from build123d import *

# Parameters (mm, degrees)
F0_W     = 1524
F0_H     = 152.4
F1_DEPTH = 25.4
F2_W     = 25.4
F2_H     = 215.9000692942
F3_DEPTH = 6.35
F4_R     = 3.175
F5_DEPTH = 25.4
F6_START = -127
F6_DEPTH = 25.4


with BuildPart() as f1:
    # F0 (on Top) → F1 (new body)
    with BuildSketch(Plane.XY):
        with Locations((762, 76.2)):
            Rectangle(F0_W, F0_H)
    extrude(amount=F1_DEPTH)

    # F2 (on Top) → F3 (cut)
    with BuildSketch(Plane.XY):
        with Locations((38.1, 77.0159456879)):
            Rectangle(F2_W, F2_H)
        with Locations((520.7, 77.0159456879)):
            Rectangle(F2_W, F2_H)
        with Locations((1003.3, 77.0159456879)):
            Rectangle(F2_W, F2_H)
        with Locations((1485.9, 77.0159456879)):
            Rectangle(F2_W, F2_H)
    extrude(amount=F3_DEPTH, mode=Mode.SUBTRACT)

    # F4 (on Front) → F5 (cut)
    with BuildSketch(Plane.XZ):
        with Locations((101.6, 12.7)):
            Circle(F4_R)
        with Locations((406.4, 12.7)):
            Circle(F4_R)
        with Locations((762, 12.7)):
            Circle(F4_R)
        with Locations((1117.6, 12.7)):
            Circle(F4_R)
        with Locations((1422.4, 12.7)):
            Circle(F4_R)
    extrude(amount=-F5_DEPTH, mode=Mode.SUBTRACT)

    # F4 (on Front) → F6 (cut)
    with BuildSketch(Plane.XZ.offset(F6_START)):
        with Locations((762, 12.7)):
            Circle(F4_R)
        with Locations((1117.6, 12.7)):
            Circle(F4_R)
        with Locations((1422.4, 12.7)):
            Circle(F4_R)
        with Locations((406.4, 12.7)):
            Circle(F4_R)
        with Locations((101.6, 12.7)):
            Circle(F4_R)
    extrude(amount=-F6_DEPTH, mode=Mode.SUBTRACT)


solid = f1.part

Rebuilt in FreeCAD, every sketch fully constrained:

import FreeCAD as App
import Part
import Sketcher

V = App.Vector
Q = App.Units.Quantity


def add_polygon(sketch, points):
    """Adds a closed chain of lines whose ends are joined by coincident constraints."""
    first, n = sketch.GeometryCount, len(points)
    for a, b in zip(points, points[1:] + points[:1]):
        sketch.addGeometry(Part.LineSegment(App.Vector(*a, 0), App.Vector(*b, 0)), False)
    for i in range(n):
        sketch.addConstraint(Sketcher.Constraint("Coincident", first + i, 2, first + (i + 1) % n, 1))

doc = App.newDocument("Part")
body = doc.addObject("PartDesign::Body", "Body")

# Sketch on XY plane
sketch1 = doc.addObject("Sketcher::SketchObject", "Sketch")
body.addObject(sketch1)
sketch1.AttachmentSupport = (doc.XY_Plane, [""])
sketch1.MapMode = "FlatFace"
add_polygon(sketch1, [(0, 152), (0, 0), (1524, 0), (1524, 152)])  # lines 0-3
sketch1.addConstraint(Sketcher.Constraint("Vertical", 0))
sketch1.addConstraint(Sketcher.Constraint("Horizontal", 1))
sketch1.addConstraint(Sketcher.Constraint("Vertical", 2))
sketch1.addConstraint(Sketcher.Constraint("Horizontal", 3))
sketch1.addConstraint(Sketcher.Constraint("Coincident", 0, 2, -1, 1))
sketch1.addConstraint(Sketcher.Constraint("DistanceX", 1, 1, 1, 2, Q("60 in")))
sketch1.addConstraint(Sketcher.Constraint("DistanceY", 0, 2, 0, 1, Q("6 in")))
pad1 = doc.addObject("PartDesign::Pad", "Pad")
body.addObject(pad1)
pad1.Profile = sketch1
pad1.Length = Q("1 in")

# Sketch on XY plane
sketch2 = doc.addObject("Sketcher::SketchObject", "Sketch001")
body.addObject(sketch2)
sketch2.AttachmentSupport = (doc.XY_Plane, [""])
sketch2.MapMode = "FlatFace"
add_polygon(sketch2, [(25, 185), (25, -31), (51, -31), (51, 185)])  # lines 0-3
add_polygon(sketch2, [(508, 185), (508, -31), (533, -31), (533, 185)])  # lines 4-7
add_polygon(sketch2, [(991, 185), (991, -31), (1016, -31), (1016, 185)])  # lines 8-11
add_polygon(sketch2, [(1473, 185), (1473, -31), (1499, -31), (1499, 185)])  # lines 12-15
sketch2.addConstraint(Sketcher.Constraint("Vertical", 0))
sketch2.addConstraint(Sketcher.Constraint("Horizontal", 1))
sketch2.addConstraint(Sketcher.Constraint("Vertical", 2))
sketch2.addConstraint(Sketcher.Constraint("Horizontal", 3))
sketch2.addConstraint(Sketcher.Constraint("Vertical", 4))
sketch2.addConstraint(Sketcher.Constraint("Horizontal", 5))
sketch2.addConstraint(Sketcher.Constraint("Vertical", 6))
sketch2.addConstraint(Sketcher.Constraint("Horizontal", 7))
sketch2.addConstraint(Sketcher.Constraint("Vertical", 8))
sketch2.addConstraint(Sketcher.Constraint("Horizontal", 9))
sketch2.addConstraint(Sketcher.Constraint("Vertical", 10))
sketch2.addConstraint(Sketcher.Constraint("Horizontal", 11))
sketch2.addConstraint(Sketcher.Constraint("Vertical", 12))
sketch2.addConstraint(Sketcher.Constraint("Horizontal", 13))
sketch2.addConstraint(Sketcher.Constraint("Vertical", 14))
sketch2.addConstraint(Sketcher.Constraint("Horizontal", 15))
sketch2.addConstraint(Sketcher.Constraint("Horizontal", 1, 2, 4, 2))
sketch2.addConstraint(Sketcher.Constraint("Horizontal", 3, 2, 6, 2))
sketch2.addConstraint(Sketcher.Constraint("Horizontal", 5, 2, 8, 2))
sketch2.addConstraint(Sketcher.Constraint("Horizontal", 7, 2, 10, 2))
sketch2.addConstraint(Sketcher.Constraint("Horizontal", 9, 2, 12, 2))
sketch2.addConstraint(Sketcher.Constraint("Horizontal", 11, 2, 14, 2))
sketch2.addConstraint(Sketcher.Constraint("Equal", 3, 5))
sketch2.addConstraint(Sketcher.Constraint("Equal", 7, 9))
sketch2.addConstraint(Sketcher.Constraint("Equal", 11, 13))
sketch2.addConstraint(Sketcher.Constraint("DistanceX", 1, 1, 1, 2, Q("1 in")))
sketch2.addConstraint(Sketcher.Constraint("DistanceX", -1, 1, 0, 2, Q("1 in")))
sketch2.addConstraint(Sketcher.Constraint("DistanceX", -1, 1, 4, 2, Q("20 in")))
sketch2.addConstraint(Sketcher.Constraint("DistanceX", -1, 1, 8, 2, Q("39 in")))
sketch2.addConstraint(Sketcher.Constraint("DistanceX", -1, 1, 12, 2, Q("58 in")))
sketch2.addConstraint(Sketcher.Constraint("DistanceY", 0, 2, 0, 1, 215.900069))
sketch2.addConstraint(Sketcher.Constraint("DistanceY", 0, 2, -1, 1, 30.934089))
pocket1 = doc.addObject("PartDesign::Pocket", "Pocket")
body.addObject(pocket1)
pocket1.Profile = sketch2
pocket1.Length = Q("0.25 in")
pocket1.Reversed = True

# Sketch on XZ plane
sketch3 = doc.addObject("Sketcher::SketchObject", "Sketch002")
body.addObject(sketch3)
sketch3.AttachmentSupport = (doc.XZ_Plane, [""])
sketch3.MapMode = "FlatFace"
sketch3.addGeometry(Part.Circle(V(101.6, 12.7, 0), V(0, 0, 1), 3.2), False)
sketch3.addGeometry(Part.Circle(V(406.4, 12.7, 0), V(0, 0, 1), 3.2), False)
sketch3.addGeometry(Part.Circle(V(762, 12.7, 0), V(0, 0, 1), 3.2), False)
sketch3.addGeometry(Part.Circle(V(1117.6, 12.7, 0), V(0, 0, 1), 3.2), False)
sketch3.addGeometry(Part.Circle(V(1422.4, 12.7, 0), V(0, 0, 1), 3.2), False)
sketch3.addConstraint(Sketcher.Constraint("Equal", 0, 1))
sketch3.addConstraint(Sketcher.Constraint("Equal", 1, 2))
sketch3.addConstraint(Sketcher.Constraint("Equal", 2, 3))
sketch3.addConstraint(Sketcher.Constraint("Equal", 3, 4))
sketch3.addConstraint(Sketcher.Constraint("Horizontal", 0, 3, 1, 3))
sketch3.addConstraint(Sketcher.Constraint("Horizontal", 1, 3, 2, 3))
sketch3.addConstraint(Sketcher.Constraint("Horizontal", 2, 3, 3, 3))
sketch3.addConstraint(Sketcher.Constraint("Horizontal", 3, 3, 4, 3))
sketch3.addConstraint(Sketcher.Constraint("Diameter", 0, Q("0.25 in")))
sketch3.addConstraint(Sketcher.Constraint("DistanceX", -1, 1, 0, 3, Q("4 in")))
sketch3.addConstraint(Sketcher.Constraint("DistanceX", -1, 1, 1, 3, Q("16 in")))
sketch3.addConstraint(Sketcher.Constraint("DistanceX", -1, 1, 2, 3, Q("30 in")))
sketch3.addConstraint(Sketcher.Constraint("DistanceX", -1, 1, 3, 3, Q("44 in")))
sketch3.addConstraint(Sketcher.Constraint("DistanceX", -1, 1, 4, 3, Q("56 in")))
sketch3.addConstraint(Sketcher.Constraint("DistanceY", -1, 1, 0, 3, Q("0.5 in")))
pocket2 = doc.addObject("PartDesign::Pocket", "Pocket001")
body.addObject(pocket2)
pocket2.Profile = sketch3
pocket2.Length = Q("1 in")

# Sketch on XZ plane
sketch4 = doc.addObject("Sketcher::SketchObject", "Sketch003")
body.addObject(sketch4)
sketch4.AttachmentSupport = (doc.XZ_Plane, [""])
sketch4.MapMode = "FlatFace"
sketch4.AttachmentOffset = App.Placement(V(0, 0, -5 * 25.4), App.Rotation())
sketch4.addGeometry(Part.Circle(V(762, 12.7, 0), V(0, 0, 1), 3.2), False)
sketch4.addGeometry(Part.Circle(V(1117.6, 12.7, 0), V(0, 0, 1), 3.2), False)
sketch4.addGeometry(Part.Circle(V(1422.4, 12.7, 0), V(0, 0, 1), 3.2), False)
sketch4.addGeometry(Part.Circle(V(406.4, 12.7, 0), V(0, 0, 1), 3.2), False)
sketch4.addGeometry(Part.Circle(V(101.6, 12.7, 0), V(0, 0, 1), 3.2), False)
sketch4.addConstraint(Sketcher.Constraint("Equal", 0, 1))
sketch4.addConstraint(Sketcher.Constraint("Equal", 1, 2))
sketch4.addConstraint(Sketcher.Constraint("Equal", 2, 3))
sketch4.addConstraint(Sketcher.Constraint("Equal", 3, 4))
sketch4.addConstraint(Sketcher.Constraint("Horizontal", 0, 3, 1, 3))
sketch4.addConstraint(Sketcher.Constraint("Horizontal", 1, 3, 2, 3))
sketch4.addConstraint(Sketcher.Constraint("Horizontal", 2, 3, 3, 3))
sketch4.addConstraint(Sketcher.Constraint("Horizontal", 3, 3, 4, 3))
sketch4.addConstraint(Sketcher.Constraint("Diameter", 0, Q("0.25 in")))
sketch4.addConstraint(Sketcher.Constraint("DistanceX", -1, 1, 0, 3, Q("30 in")))
sketch4.addConstraint(Sketcher.Constraint("DistanceX", -1, 1, 1, 3, Q("44 in")))
sketch4.addConstraint(Sketcher.Constraint("DistanceX", -1, 1, 2, 3, Q("56 in")))
sketch4.addConstraint(Sketcher.Constraint("DistanceX", -1, 1, 3, 3, Q("16 in")))
sketch4.addConstraint(Sketcher.Constraint("DistanceX", -1, 1, 4, 3, Q("4 in")))
sketch4.addConstraint(Sketcher.Constraint("DistanceY", -1, 1, 0, 3, Q("0.5 in")))
pocket3 = doc.addObject("PartDesign::Pocket", "Pocket002")
body.addObject(pocket3)
pocket3.Profile = sketch4
pocket3.Length = Q("1 in")

doc.recompute()
